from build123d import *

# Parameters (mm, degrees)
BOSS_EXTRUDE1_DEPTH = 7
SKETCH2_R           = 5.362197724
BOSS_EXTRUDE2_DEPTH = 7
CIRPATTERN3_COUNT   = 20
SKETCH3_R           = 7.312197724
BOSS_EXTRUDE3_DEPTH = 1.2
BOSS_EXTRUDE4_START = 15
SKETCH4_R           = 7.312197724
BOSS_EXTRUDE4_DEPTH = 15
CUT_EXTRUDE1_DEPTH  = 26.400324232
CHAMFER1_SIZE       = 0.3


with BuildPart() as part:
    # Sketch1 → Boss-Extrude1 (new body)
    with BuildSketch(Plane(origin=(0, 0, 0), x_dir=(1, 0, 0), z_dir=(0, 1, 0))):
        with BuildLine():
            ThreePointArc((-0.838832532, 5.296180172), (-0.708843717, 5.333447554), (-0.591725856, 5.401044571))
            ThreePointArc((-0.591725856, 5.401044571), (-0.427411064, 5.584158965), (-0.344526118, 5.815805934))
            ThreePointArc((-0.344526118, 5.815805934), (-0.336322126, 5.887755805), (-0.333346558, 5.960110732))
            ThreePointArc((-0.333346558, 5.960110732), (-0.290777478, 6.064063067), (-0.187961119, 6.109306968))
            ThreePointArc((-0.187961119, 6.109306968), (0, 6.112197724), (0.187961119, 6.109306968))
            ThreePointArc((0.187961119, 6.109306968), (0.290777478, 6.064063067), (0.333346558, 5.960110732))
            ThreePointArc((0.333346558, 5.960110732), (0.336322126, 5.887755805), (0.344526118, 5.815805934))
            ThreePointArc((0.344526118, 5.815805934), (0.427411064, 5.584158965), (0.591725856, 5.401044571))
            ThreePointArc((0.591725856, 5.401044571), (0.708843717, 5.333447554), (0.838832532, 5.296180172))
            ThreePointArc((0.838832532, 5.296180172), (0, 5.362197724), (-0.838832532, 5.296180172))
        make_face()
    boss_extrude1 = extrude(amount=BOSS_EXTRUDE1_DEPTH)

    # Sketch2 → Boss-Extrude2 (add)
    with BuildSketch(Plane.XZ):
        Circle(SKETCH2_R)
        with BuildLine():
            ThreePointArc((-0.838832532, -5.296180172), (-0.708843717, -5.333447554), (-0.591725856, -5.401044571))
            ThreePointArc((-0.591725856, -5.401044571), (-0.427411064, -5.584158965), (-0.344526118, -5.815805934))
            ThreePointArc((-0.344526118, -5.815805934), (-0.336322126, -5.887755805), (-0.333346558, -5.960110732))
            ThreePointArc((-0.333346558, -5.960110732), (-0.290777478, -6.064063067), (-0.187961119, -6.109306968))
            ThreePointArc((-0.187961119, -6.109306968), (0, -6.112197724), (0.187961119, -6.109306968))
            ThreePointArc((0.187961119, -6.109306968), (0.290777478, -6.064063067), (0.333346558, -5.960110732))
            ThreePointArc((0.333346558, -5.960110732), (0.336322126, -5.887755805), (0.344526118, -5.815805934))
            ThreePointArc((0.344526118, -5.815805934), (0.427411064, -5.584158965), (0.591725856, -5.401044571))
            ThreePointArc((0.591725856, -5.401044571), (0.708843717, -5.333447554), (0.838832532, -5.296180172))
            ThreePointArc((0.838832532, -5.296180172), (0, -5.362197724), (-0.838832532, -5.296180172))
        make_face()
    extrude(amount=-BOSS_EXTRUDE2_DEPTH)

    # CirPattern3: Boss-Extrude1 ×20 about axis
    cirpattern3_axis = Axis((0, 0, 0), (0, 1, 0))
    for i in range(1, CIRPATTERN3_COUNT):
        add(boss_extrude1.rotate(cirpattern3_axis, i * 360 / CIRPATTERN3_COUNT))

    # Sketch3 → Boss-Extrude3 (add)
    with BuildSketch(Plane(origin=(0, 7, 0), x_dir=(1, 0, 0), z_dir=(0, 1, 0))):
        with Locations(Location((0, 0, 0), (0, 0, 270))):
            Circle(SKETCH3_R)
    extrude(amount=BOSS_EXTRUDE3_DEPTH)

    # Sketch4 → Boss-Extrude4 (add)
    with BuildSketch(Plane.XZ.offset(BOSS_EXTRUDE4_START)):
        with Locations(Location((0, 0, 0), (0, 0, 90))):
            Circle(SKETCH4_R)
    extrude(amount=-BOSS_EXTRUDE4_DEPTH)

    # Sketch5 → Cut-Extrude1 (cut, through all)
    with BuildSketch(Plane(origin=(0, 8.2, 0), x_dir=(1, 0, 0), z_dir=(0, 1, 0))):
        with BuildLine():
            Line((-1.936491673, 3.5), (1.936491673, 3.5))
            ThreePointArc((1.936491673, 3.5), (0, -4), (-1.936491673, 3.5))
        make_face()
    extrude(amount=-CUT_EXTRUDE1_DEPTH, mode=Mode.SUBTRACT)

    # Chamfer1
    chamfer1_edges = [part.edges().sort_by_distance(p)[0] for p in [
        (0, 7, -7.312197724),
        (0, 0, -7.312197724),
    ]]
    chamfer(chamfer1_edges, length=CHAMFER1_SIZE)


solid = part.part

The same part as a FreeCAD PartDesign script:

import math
import FreeCAD as App
import Part
import Sketcher

V = App.Vector


def edges_at(feature, points):
    """Names of the edges that pass closest to the given points."""
    edges = feature.Shape.Edges
    near = lambda p: min(range(len(edges)), key=lambda i: edges[i].distToShape(Part.Vertex(*p))[0])
    return sorted({f"Edge{near(p) + 1}" for p in points})

doc = App.newDocument("Part")
params = doc.addObject("Spreadsheet::Sheet", "Params")
for row, (alias, value) in enumerate([
    ("sketch1_radius", "1 mm"),
    ("sketch1_radius2", "0.15 mm"),
    ("pad1_length", "7 mm"),
    ("sketch2_radius", "1 mm"),
    ("sketch2_radius2", "0.15 mm"),
    ("pad2_length", "7 mm"),
    ("pad3_length", "1.2 mm"),
    ("pad4_length", "15 mm"),
    ("sketch5_radius", "4 mm"),
    ("chamfer_size", "0.3 mm"),
], start=1):
    params.set(f"A{row}", alias)
    params.set(f"B{row}", "=" + value)
    params.setAlias(f"B{row}", alias)

body = doc.addObject("PartDesign::Body", "Body")

# Sketch on XZ plane
sketch1 = doc.addObject("Sketcher::SketchObject", "Sketch")
body.addObject(sketch1)
sketch1.AttachmentSupport = (doc.XZ_Plane, [""])
sketch1.MapMode = "FlatFace"
sketch1.addGeometry(Part.ArcOfCircle(Part.Circle(V(-0.93, -5.84, 0), V(0, 0, 1), 0.55), math.radians(53), math.radians(81)), False)
sketch1.addGeometry(Part.ArcOfCircle(Part.Circle(V(0, 0, 0), V(0, 0, 1), 5.36), math.radians(-99), math.radians(-81)), False)
sketch1.addGeometry(Part.ArcOfCircle(Part.Circle(V(0.93, -5.84, 0), V(0, 0, 1), 0.55), math.radians(99), math.radians(127)), False)
sketch1.addGeometry(Part.ArcOfCircle(Part.Circle(V(0.98, -5.91, 0), V(0, 0, 1), 0.64), math.radians(127), math.radians(171)), False)
sketch1.addGeometry(Part.ArcOfCircle(Part.Circle(V(1.33, -5.96, 0), V(0, 0, 1), 1), math.radians(171.42), math.radians(179.72)), False)
sketch1.addGeometry(Part.ArcOfCircle(Part.Circle(V(0.18, -5.96, 0), V(0, 0, 1), 0.15), math.radians(-88), math.radians(0)), False)
sketch1.addGeometry(Part.ArcOfCircle(Part.Circle(V(0, 0, 0), V(0, 0, 1), 6.11), math.radians(-91.76), math.radians(-88.24)), False)
sketch1.addGeometry(Part.ArcOfCircle(Part.Circle(V(-0.18, -5.96, 0), V(0, 0, 1), 0.15), math.radians(-180), math.radians(-92)), False)
sketch1.addGeometry(Part.ArcOfCircle(Part.Circle(V(-1.33, -5.96, 0), V(0, 0, 1), 1), math.radians(0.28), math.radians(8.58)), False)
sketch1.addGeometry(Part.ArcOfCircle(Part.Circle(V(-0.98, -5.91, 0), V(0, 0, 1), 0.64), math.radians(9), math.radians(53)), False)
sketch1.addConstraint(Sketcher.Constraint("Tangent", 0, 2, 1, 1))
sketch1.addConstraint(Sketcher.Constraint("Tangent", 1, 2, 2, 1))
sketch1.addConstraint(Sketcher.Constraint("Tangent", 2, 2, 3, 1))
sketch1.addConstraint(Sketcher.Constraint("Tangent", 3, 2, 4, 1))
sketch1.addConstraint(Sketcher.Constraint("Tangent", 4, 2, 5, 2))
sketch1.addConstraint(Sketcher.Constraint("Tangent", 5, 1, 6, 2))
sketch1.addConstraint(Sketcher.Constraint("Tangent", 6, 1, 7, 2))
sketch1.addConstraint(Sketcher.Constraint("Tangent", 7, 1, 8, 1))
sketch1.addConstraint(Sketcher.Constraint("Tangent", 8, 2, 9, 1))
sketch1.addConstraint(Sketcher.Constraint("Tangent", 9, 2, 0, 1))
sketch1.addConstraint(Sketcher.Constraint("Coincident", 1, 3, -1, 1))
sketch1.addConstraint(Sketcher.Constraint("Coincident", 6, 3, -1, 1))
sketch1.addConstraint(Sketcher.Constraint("Equal", 0, 2))
sketch1.addConstraint(Sketcher.Constraint("Equal", 5, 7))
sketch1.addConstraint(Sketcher.Constraint("Equal", 4, 8))
sketch1.addConstraint(Sketcher.Constraint("Equal", 3, 9))
sketch1.addConstraint(Sketcher.Constraint("Symmetric", 4, 3, 8, 3, -2))
sketch1.addConstraint(Sketcher.Constraint("Horizontal", 0, 3, 2, 3))
sketch1.addConstraint(Sketcher.Constraint("Radius", 4, 1.0))
sketch1.addConstraint(Sketcher.Constraint("Radius", 5, 0.15))
sketch1.addConstraint(Sketcher.Constraint("Radius", 0, 0.555))
sketch1.addConstraint(Sketcher.Constraint("Radius", 1, 5.362198))
sketch1.addConstraint(Sketcher.Constraint("Radius", 3, 0.638533))
sketch1.addConstraint(Sketcher.Constraint("Radius", 6, 6.112197))
sketch1.addConstraint(Sketcher.Constraint("DistanceX", 8, 3, 0, 2, 0.494502))
sketch1.addConstraint(Sketcher.Constraint("DistanceX", 3, 2, 2, 2, 0.2472))
sketch1.addConstraint(Sketcher.Constraint("DistanceY", 5, 1, 3, 2, 0.293501))
sketch1.setExpression("Constraints[18]", "Params.sketch1_radius")
sketch1.setExpression("Constraints[19]", "Params.sketch1_radius2")
pad1 = doc.addObject("PartDesign::Pad", "Pad")
body.addObject(pad1)
pad1.Profile = sketch1
pad1.setExpression("Length", "Params.pad1_length")
pad1.Reversed = True

# Sketch on XZ plane
sketch2 = doc.addObject("Sketcher::SketchObject", "Sketch001")
body.addObject(sketch2)
sketch2.AttachmentSupport = (doc.XZ_Plane, [""])
sketch2.MapMode = "FlatFace"
sketch2.addGeometry(Part.ArcOfCircle(Part.Circle(V(-0.93, -5.84, 0), V(0, 0, 1), 0.55), math.radians(53), math.radians(81)), False)
sketch2.addGeometry(Part.ArcOfCircle(Part.Circle(V(-0.98, -5.91, 0), V(0, 0, 1), 0.64), math.radians(9), math.radians(53)), False)
sketch2.addGeometry(Part.ArcOfCircle(Part.Circle(V(-1.33, -5.96, 0), V(0, 0, 1), 1), math.radians(0.28), math.radians(8.58)), False)
sketch2.addGeometry(Part.ArcOfCircle(Part.Circle(V(-0.18, -5.96, 0), V(0, 0, 1), 0.15), math.radians(-180), math.radians(-92)), False)
sketch2.addGeometry(Part.ArcOfCircle(Part.Circle(V(0, 0, 0), V(0, 0, 1), 6.11), math.radians(-91.76), math.radians(-88.24)), False)
sketch2.addGeometry(Part.ArcOfCircle(Part.Circle(V(0.18, -5.96, 0), V(0, 0, 1), 0.15), math.radians(-88), math.radians(0)), False)
sketch2.addGeometry(Part.ArcOfCircle(Part.Circle(V(1.33, -5.96, 0), V(0, 0, 1), 1), math.radians(171.42), math.radians(179.72)), False)
sketch2.addGeometry(Part.ArcOfCircle(Part.Circle(V(0.98, -5.91, 0), V(0, 0, 1), 0.64), math.radians(127), math.radians(171)), False)
sketch2.addGeometry(Part.ArcOfCircle(Part.Circle(V(0.93, -5.84, 0), V(0, 0, 1), 0.55), math.radians(99), math.radians(127)), False)
sketch2.addGeometry(Part.ArcOfCircle(Part.Circle(V(0, 0, 0), V(0, 0, 1), 5.36), math.radians(-81), math.radians(261)), False)
sketch2.addConstraint(Sketcher.Constraint("Tangent", 0, 1, 1, 2))
sketch2.addConstraint(Sketcher.Constraint("Tangent", 1, 1, 2, 2))
sketch2.addConstraint(Sketcher.Constraint("Tangent", 2, 1, 3, 1))
sketch2.addConstraint(Sketcher.Constraint("Tangent", 3, 2, 4, 1))
sketch2.addConstraint(Sketcher.Constraint("Tangent", 4, 2, 5, 1))
sketch2.addConstraint(Sketcher.Constraint("Tangent", 5, 2, 6, 2))
sketch2.addConstraint(Sketcher.Constraint("Tangent", 6, 1, 7, 2))
sketch2.addConstraint(Sketcher.Constraint("Tangent", 7, 1, 8, 2))
sketch2.addConstraint(Sketcher.Constraint("Tangent", 8, 1, 9, 1))
sketch2.addConstraint(Sketcher.Constraint("Tangent", 9, 2, 0, 2))
sketch2.addConstraint(Sketcher.Constraint("Coincident", 4, 3, -1, 1))
sketch2.addConstraint(Sketcher.Constraint("Coincident", 9, 3, -1, 1))
sketch2.addConstraint(Sketcher.Constraint("Equal", 3, 5))
sketch2.addConstraint(Sketcher.Constraint("Equal", 2, 6))
sketch2.addConstraint(Sketcher.Constraint("Equal", 1, 7))
sketch2.addConstraint(Sketcher.Constraint("Equal", 0, 8))
sketch2.addConstraint(Sketcher.Constraint("Symmetric", 2, 3, 6, 3, -2))
sketch2.addConstraint(Sketcher.Constraint("Horizontal", 1, 3, 7, 3))
sketch2.addConstraint(Sketcher.Constraint("Radius", 2, 1.0))
sketch2.addConstraint(Sketcher.Constraint("Radius", 3, 0.15))
sketch2.addConstraint(Sketcher.Constraint("Radius", 0, 0.555))
sketch2.addConstraint(Sketcher.Constraint("Radius", 1, 0.638533))
sketch2.addConstraint(Sketcher.Constraint("Radius", 4, 6.112197))
sketch2.addConstraint(Sketcher.Constraint("Radius", 9, 5.362198))
sketch2.addConstraint(Sketcher.Constraint("DistanceX", 0, 1, 1, 1, 0.2472))
sketch2.addConstraint(Sketcher.Constraint("DistanceY", 3, 2, 1, 1, 0.293501))
sketch2.addConstraint(Sketcher.Constraint("DistanceX", 8, 1, 6, 3, 0.494502))
sketch2.setExpression("Constraints[18]", "Params.sketch2_radius")
sketch2.setExpression("Constraints[19]", "Params.sketch2_radius2")
pad2 = doc.addObject("PartDesign::Pad", "Pad001")
body.addObject(pad2)
pad2.Profile = sketch2
pad2.setExpression("Length", "Params.pad2_length")
pad2.Reversed = True
doc.recompute()

polarpattern = doc.addObject("PartDesign::PolarPattern", "PolarPattern")
body.addObject(polarpattern)
polarpattern.Originals = [pad1]
polarpattern.Axis = (doc.Y_Axis, [""])
polarpattern.Angle = 360
polarpattern.Occurrences = 20
body.Tip = polarpattern

# Sketch on XZ plane
sketch3 = doc.addObject("Sketcher::SketchObject", "Sketch002")
body.addObject(sketch3)
sketch3.AttachmentSupport = (doc.XZ_Plane, [""])
sketch3.MapMode = "FlatFace"
sketch3.AttachmentOffset = App.Placement(V(0, 0, -7), App.Rotation())
sketch3.addGeometry(Part.Circle(V(0, 0, 0), V(0, 0, 1), 7), False)
sketch3.addConstraint(Sketcher.Constraint("Coincident", 0, 3, -1, 1))
sketch3.addConstraint(Sketcher.Constraint("Diameter", 0, 14.624395))
pad3 = doc.addObject("PartDesign::Pad", "Pad002")
body.addObject(pad3)
pad3.Profile = sketch3
pad3.setExpression("Length", "Params.pad3_length")
pad3.Reversed = True

# Sketch on XZ plane
sketch4 = doc.addObject("Sketcher::SketchObject", "Sketch003")
body.addObject(sketch4)
sketch4.AttachmentSupport = (doc.XZ_Plane, [""])
sketch4.MapMode = "FlatFace"
sketch4.AttachmentOffset = App.Placement(V(0, 0, 15), App.Rotation())
sketch4.addGeometry(Part.Circle(V(0, 0, 0), V(0, 0, 1), 7), False)
sketch4.addConstraint(Sketcher.Constraint("Coincident", 0, 3, -1, 1))
sketch4.addConstraint(Sketcher.Constraint("Diameter", 0, 14.624395))
pad4 = doc.addObject("PartDesign::Pad", "Pad003")
body.addObject(pad4)
pad4.Profile = sketch4
pad4.setExpression("Length", "Params.pad4_length")
pad4.Reversed = True

# Sketch on XZ plane
sketch5 = doc.addObject("Sketcher::SketchObject", "Sketch004")
body.addObject(sketch5)
sketch5.AttachmentSupport = (doc.XZ_Plane, [""])
sketch5.MapMode = "FlatFace"
sketch5.AttachmentOffset = App.Placement(V(0, 0, -8.2), App.Rotation())
sketch5.addGeometry(Part.LineSegment(V(1.9, -3.5, 0), V(-1.9, -3.5, 0)), False)
sketch5.addGeometry(Part.ArcOfCircle(Part.Circle(V(0, 0, 0), V(0, 0, 1), 4), math.radians(-61), math.radians(241)), False)
sketch5.addConstraint(Sketcher.Constraint("Coincident", 0, 1, 1, 1))
sketch5.addConstraint(Sketcher.Constraint("Coincident", 1, 2, 0, 2))
sketch5.addConstraint(Sketcher.Constraint("Horizontal", 0))
sketch5.addConstraint(Sketcher.Constraint("Coincident", 1, 3, -1, 1))
sketch5.addConstraint(Sketcher.Constraint("Radius", 1, 4.0))
sketch5.addConstraint(Sketcher.Constraint("DistanceY", 0, 1, -1, 1, 3.5))
sketch5.setExpression("Constraints[4]", "Params.sketch5_radius")
pocket1 = doc.addObject("PartDesign::Pocket", "Pocket")
body.addObject(pocket1)
pocket1.Profile = sketch5
pocket1.Type = "ThroughAll"
pocket1.Reversed = True
doc.recompute()

chamfer = doc.addObject("PartDesign::Chamfer", "Chamfer")
body.addObject(chamfer)
chamfer.Base = (pocket1, edges_at(pocket1, [(0, 7, -7.312), (0, 0, -7.312)]))
chamfer.setExpression("Size", "Params.chamfer_size")

doc.recompute()
